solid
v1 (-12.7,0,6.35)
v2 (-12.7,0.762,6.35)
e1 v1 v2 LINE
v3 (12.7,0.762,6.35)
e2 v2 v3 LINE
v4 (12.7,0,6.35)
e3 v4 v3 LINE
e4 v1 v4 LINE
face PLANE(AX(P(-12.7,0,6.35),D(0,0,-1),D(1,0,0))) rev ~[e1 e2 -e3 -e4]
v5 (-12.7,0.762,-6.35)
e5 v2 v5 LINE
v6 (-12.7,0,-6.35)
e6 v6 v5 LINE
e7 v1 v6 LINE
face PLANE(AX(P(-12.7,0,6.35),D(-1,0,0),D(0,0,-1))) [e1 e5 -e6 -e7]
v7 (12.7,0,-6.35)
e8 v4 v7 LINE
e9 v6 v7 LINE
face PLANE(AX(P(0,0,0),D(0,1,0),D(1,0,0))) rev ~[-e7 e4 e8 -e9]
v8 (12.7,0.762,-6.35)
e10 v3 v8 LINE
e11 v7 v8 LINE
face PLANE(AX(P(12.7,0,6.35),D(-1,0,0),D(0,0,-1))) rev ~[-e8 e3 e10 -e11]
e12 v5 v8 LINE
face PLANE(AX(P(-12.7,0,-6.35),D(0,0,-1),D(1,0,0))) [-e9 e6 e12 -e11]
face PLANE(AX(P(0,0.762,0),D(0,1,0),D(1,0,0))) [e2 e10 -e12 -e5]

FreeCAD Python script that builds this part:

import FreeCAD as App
import Part
import Sketcher
from FreeCAD import Vector
Q = App.Units.Quantity


def add_polygon(sketch, points):
    """Adds a closed chain of lines whose ends are joined by coincident constraints."""
    first, n = sketch.GeometryCount, len(points)
    for a, b in zip(points, points[1:] + points[:1]):
        sketch.addGeometry(Part.LineSegment(App.Vector(*a, 0), App.Vector(*b, 0)), False)
    for i in range(n):
        sketch.addConstraint(Sketcher.Constraint("Coincident", first + i, 2, first + (i + 1) % n, 1))

doc = App.newDocument("Part")
params = doc.addObject("Spreadsheet::Sheet", "Params")
for row, (alias, value) in enumerate([
    ("sketch1_width", "1 in"),
    ("sketch1_height", "0.5 in"),
    ("pad1_length", "0.03 in"),
], start=1):
    params.set(f"A{row}", alias)
    params.set(f"B{row}", "=" + value)
    params.setAlias(f"B{row}", alias)

body = doc.addObject("PartDesign::Body", "Body")

# Sketch on XZ plane
sketch1 = doc.addObject("Sketcher::SketchObject", "Sketch")
body.addObject(sketch1)
sketch1.AttachmentSupport = (doc.XZ_Plane, [""])
sketch1.MapMode = "FlatFace"
add_polygon(sketch1, [(-13, -6), (-13, 6), (13, 6), (13, -6)])  # lines 0-3
sketch1.addConstraint([
    Sketcher.Constraint("Vertical", 0),
    Sketcher.Constraint("Horizontal", 1),
    Sketcher.Constraint("Vertical", 2),
    Sketcher.Constraint("Horizontal", 3),
    Sketcher.Constraint("Symmetric", 0, 2, 2, 2, -1, 1),
    Sketcher.Constraint("DistanceX", 1, 1, 1, 2, Q("1 in")),
    Sketcher.Constraint("DistanceY", 0, 1, 0, 2, Q("0.5 in")),
])
sketch1.setExpression("Constraints[9]", "Params.sketch1_width")
sketch1.setExpression("Constraints[10]", "Params.sketch1_height")
pad1 = doc.addObject("PartDesign::Pad", "Pad")
body.addObject(pad1)
pad1.Profile = sketch1
pad1.setExpression("Length", "Params.pad1_length")
pad1.Reversed = True

doc.recompute()
